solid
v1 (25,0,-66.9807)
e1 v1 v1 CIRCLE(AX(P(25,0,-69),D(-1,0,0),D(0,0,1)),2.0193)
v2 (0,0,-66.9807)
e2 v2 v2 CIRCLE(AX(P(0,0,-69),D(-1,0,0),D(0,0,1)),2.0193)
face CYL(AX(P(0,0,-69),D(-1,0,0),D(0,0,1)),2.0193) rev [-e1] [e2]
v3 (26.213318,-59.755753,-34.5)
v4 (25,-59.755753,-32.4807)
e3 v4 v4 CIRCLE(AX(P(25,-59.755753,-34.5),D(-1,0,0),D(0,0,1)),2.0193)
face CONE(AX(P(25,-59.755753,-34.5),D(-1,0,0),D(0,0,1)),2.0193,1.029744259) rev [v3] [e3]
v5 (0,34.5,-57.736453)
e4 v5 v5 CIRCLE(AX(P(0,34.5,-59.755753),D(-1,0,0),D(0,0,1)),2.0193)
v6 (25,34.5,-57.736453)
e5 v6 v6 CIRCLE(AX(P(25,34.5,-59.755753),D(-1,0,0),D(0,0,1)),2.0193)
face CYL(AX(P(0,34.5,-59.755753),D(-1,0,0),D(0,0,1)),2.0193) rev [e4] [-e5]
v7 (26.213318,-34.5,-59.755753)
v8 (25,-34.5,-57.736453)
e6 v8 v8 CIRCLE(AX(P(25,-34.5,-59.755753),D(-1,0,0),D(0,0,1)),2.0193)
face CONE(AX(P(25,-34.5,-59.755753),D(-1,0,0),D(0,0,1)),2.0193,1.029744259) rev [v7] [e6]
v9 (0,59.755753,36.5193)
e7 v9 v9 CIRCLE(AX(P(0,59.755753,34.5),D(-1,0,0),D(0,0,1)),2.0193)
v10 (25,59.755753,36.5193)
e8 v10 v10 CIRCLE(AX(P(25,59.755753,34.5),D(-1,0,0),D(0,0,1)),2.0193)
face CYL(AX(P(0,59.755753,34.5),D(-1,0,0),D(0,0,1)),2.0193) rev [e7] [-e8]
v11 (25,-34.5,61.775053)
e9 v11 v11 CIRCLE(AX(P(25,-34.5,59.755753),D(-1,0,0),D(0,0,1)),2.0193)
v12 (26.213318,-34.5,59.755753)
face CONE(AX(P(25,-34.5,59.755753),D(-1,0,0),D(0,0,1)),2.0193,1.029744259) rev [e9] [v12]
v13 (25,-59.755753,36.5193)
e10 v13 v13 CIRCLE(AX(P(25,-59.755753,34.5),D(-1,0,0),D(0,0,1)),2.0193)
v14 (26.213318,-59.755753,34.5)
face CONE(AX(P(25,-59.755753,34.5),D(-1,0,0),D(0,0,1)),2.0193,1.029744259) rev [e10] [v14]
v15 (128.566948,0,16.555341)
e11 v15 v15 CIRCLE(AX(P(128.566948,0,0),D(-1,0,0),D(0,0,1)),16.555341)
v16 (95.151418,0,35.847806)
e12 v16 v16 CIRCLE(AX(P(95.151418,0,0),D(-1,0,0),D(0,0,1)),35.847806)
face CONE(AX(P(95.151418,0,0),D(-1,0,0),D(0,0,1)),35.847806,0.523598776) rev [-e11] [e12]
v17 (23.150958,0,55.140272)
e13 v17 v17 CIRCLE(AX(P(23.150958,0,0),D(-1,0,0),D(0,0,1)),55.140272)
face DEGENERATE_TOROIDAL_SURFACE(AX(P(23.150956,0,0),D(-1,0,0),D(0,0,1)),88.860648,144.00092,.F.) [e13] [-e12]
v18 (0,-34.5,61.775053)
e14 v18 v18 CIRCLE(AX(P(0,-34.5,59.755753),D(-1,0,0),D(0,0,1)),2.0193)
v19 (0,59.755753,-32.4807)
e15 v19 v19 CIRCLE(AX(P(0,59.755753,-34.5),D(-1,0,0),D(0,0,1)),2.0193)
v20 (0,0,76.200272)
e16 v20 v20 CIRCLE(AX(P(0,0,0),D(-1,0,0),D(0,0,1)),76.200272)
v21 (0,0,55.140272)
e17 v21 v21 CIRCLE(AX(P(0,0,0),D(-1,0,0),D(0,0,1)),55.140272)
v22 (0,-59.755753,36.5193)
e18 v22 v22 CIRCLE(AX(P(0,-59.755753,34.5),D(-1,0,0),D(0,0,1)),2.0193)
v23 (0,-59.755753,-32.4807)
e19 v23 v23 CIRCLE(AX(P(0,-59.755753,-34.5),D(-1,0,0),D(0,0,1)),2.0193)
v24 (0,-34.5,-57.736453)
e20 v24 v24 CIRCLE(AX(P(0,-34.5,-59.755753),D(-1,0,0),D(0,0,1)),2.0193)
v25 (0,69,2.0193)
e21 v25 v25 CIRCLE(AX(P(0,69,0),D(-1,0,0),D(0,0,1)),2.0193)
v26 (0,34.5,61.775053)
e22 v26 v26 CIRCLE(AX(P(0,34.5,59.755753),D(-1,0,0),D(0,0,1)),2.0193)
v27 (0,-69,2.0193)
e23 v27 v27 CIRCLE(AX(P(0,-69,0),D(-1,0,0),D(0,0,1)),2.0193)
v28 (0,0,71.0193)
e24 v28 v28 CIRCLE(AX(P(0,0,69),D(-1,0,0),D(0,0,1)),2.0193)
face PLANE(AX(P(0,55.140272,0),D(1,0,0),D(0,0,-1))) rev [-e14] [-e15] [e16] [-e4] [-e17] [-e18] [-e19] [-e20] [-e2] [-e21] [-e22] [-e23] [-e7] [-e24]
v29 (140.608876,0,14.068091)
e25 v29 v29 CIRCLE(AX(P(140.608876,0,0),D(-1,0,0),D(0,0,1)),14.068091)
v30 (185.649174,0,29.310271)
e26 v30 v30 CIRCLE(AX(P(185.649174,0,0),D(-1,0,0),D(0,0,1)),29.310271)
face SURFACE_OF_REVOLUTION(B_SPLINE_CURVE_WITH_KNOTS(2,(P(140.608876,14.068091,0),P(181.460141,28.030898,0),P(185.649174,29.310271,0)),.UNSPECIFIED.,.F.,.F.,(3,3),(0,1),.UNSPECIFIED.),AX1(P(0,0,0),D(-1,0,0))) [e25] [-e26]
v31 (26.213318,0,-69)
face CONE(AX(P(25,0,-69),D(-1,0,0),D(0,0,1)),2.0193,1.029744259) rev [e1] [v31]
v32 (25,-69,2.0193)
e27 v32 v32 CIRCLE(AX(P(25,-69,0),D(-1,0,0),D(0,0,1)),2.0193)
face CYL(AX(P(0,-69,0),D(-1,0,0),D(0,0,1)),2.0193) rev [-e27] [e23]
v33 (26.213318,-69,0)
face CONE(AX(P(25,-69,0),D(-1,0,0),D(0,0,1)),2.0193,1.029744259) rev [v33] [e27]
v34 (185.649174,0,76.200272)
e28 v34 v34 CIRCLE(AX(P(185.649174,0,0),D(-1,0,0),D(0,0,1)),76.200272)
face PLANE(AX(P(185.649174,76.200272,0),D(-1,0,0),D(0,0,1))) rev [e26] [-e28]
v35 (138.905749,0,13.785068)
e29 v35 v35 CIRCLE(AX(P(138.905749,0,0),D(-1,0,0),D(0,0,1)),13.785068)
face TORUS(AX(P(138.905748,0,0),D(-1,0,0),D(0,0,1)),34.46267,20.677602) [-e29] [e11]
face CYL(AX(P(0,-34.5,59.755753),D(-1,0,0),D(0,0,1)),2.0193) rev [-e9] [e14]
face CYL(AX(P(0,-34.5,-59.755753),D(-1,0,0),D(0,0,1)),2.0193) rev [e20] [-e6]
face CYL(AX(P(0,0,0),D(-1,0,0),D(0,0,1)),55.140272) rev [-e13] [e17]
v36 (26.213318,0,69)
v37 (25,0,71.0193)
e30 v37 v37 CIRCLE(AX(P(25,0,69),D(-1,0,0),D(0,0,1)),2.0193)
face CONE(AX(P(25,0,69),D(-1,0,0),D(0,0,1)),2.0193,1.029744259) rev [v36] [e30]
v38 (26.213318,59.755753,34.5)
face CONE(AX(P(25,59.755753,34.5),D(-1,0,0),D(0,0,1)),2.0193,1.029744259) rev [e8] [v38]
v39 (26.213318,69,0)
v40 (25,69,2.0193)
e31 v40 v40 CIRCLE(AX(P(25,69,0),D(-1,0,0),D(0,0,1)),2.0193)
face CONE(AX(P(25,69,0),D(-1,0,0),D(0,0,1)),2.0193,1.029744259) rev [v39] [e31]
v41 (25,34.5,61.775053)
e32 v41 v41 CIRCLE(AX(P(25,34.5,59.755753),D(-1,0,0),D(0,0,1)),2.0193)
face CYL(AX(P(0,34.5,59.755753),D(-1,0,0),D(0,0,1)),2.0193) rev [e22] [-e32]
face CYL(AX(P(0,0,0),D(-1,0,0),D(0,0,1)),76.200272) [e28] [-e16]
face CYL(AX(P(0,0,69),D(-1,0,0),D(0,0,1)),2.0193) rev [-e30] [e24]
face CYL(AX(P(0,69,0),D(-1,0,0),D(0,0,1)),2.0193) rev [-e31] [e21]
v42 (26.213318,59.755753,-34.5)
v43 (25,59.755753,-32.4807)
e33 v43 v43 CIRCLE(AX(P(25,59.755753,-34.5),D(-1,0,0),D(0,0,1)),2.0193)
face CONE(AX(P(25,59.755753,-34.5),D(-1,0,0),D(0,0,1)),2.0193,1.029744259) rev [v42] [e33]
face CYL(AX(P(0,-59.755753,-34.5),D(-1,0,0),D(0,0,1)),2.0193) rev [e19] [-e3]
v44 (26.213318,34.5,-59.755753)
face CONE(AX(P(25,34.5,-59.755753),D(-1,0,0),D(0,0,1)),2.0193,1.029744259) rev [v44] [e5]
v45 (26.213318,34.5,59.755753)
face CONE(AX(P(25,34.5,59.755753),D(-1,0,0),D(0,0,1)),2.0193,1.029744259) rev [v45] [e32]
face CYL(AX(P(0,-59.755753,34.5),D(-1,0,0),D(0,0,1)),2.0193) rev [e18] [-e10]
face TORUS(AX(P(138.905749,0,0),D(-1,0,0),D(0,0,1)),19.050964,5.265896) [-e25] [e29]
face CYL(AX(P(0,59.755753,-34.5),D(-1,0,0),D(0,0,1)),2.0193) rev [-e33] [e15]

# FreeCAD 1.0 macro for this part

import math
import FreeCAD as App
import Part
import Sketcher

V = App.Vector
Q = App.Units.Quantity

doc = App.newDocument("Part")
params = doc.addObject("Spreadsheet::Sheet", "Params")
for row, (alias, value) in enumerate([
    ("sketch1_height", "46.890001 mm"),
    ("sketch1_height2", "21.06 mm"),
    ("revolution_angle", "360 deg"),
    ("sketch2_width", "25 mm"),
    ("groove_angle", "360 deg"),
], start=1):
    params.set(f"A{row}", alias)
    params.set(f"B{row}", "=" + value)
    params.setAlias(f"B{row}", alias)

body = doc.addObject("PartDesign::Body", "Body")

sketch1 = body.newObject("Sketcher::SketchObject", "Sketch")
sketch1.AttachmentSupport = (doc.getObject("XY_Plane"), [""])
sketch1.MapMode = "FlatFace"
sketch1.addGeometry([
    Part.LineSegment(V(0, 55.140272, 0), V(23.150958, 55.140272, 0)),
    Part.ArcOfCircle(Part.Circle(V(23.150956, -88.860648, 0), V(0, 0, 1), 144.00092), math.radians(59.999999), math.radians(89.999999)),
    Part.LineSegment(V(95.151418, 35.847806, 0), V(128.566948, 16.555341, 0)),
    Part.ArcOfCircle(Part.Circle(V(138.905748, 34.46267, 0), V(0, 0, 1), 20.677602), math.radians(-119.999998), math.radians(-89.999998)),
    Part.ArcOfCircle(Part.Circle(V(138.905749, 19.050964, 0), V(0, 0, 1), 5.265896), math.radians(-90), math.radians(-71.129768)),
    Part.BSplineCurve([V(140.608876, 14.068091, 0), V(181.460141, 28.030898, 0), V(185.649174, 29.310271, 0)], [3, 3], [0, 1], False, 2, [1, 1, 1], False),
    Part.LineSegment(V(185.649174, 29.310271, 0), V(185.649174, 76.200272, 0)),
    Part.LineSegment(V(185.649174, 76.200272, 0), V(0, 76.200272, 0)),
    Part.LineSegment(V(0, 76.200272, 0), V(0, 55.140272, 0)),
], False)
sketch1.addConstraint([
    Sketcher.Constraint("Block", 5),
    Sketcher.Constraint("Tangent", 0, 2, 1, 2),
    Sketcher.Constraint("Tangent", 1, 1, 2, 1),
    Sketcher.Constraint("Tangent", 2, 2, 3, 1),
    Sketcher.Constraint("Tangent", 3, 2, 4, 1),
    Sketcher.Constraint("Coincident", 4, 2, 5, 1),
    Sketcher.Constraint("Coincident", 5, 2, 6, 1),
    Sketcher.Constraint("Coincident", 6, 2, 7, 1),
    Sketcher.Constraint("Coincident", 7, 2, 8, 1),
    Sketcher.Constraint("Coincident", 8, 2, 0, 1),
    Sketcher.Constraint("Horizontal", 0),
    Sketcher.Constraint("Vertical", 6),
    Sketcher.Constraint("Horizontal", 7),
    Sketcher.Constraint("Vertical", 8),
    Sketcher.Constraint("PointOnObject", 7, 2, -2),
    Sketcher.Constraint("Vertical", 3, 3, 4, 3),
    Sketcher.Constraint("Angle", 2, Q("-30 deg")),
    Sketcher.Constraint("DistanceY", 6, 1, 6, 2, Q("46.890001 mm")),
    Sketcher.Constraint("DistanceY", 8, 2, 8, 1, Q("21.06 mm")),
    Sketcher.Constraint("Radius", 3, Q("20.677602 mm")),
    Sketcher.Constraint("Radius", 1, Q("144.00092 mm")),
    Sketcher.Constraint("Radius", 4, Q("5.265896 mm")),
    Sketcher.Constraint("Distance", 2, Q("38.58493 mm")),
])
sketch1.setExpression("Constraints[17]", "Params.sketch1_height")
sketch1.setExpression("Constraints[18]", "Params.sketch1_height2")
revolution = body.newObject("PartDesign::Revolution", "Revolution")
revolution.Profile = sketch1
revolution.ReferenceAxis = (sketch1, ["H_Axis"])
revolution.setExpression("Angle", "Params.revolution_angle")

sketch2 = body.newObject("Sketcher::SketchObject", "Sketch001")
sketch2.AttachmentSupport = (doc.getObject("XZ_Plane"), [""])
sketch2.MapMode = "FlatFace"
sketch2.addGeometry([
    Part.LineSegment(V(26.2, 69, 0), V(0, 69, 0)),
    Part.LineSegment(V(0, 69, 0), V(0, 71, 0)),
    Part.LineSegment(V(0, 71, 0), V(25, 71, 0)),
    Part.LineSegment(V(25, 71, 0), V(26.2, 69, 0)),
], False)
sketch2.addGeometry(Part.LineSegment(V(0, 69, 0), V(26.2, 69, 0)), True)
sketch2.addConstraint([
    Sketcher.Constraint("Coincident", 0, 2, 1, 1),
    Sketcher.Constraint("Coincident", 1, 2, 2, 1),
    Sketcher.Constraint("Coincident", 2, 2, 3, 1),
    Sketcher.Constraint("Coincident", 3, 2, 0, 1),
    Sketcher.Constraint("Horizontal", 0),
    Sketcher.Constraint("Vertical", 1),
    Sketcher.Constraint("Horizontal", 2),
    Sketcher.Constraint("Horizontal", 4),
    Sketcher.Constraint("Coincident", 4, 1, 0, 2),
    Sketcher.Constraint("PointOnObject", 0, 2, -2),
    Sketcher.Constraint("Equal", 0, 4),
    Sketcher.Constraint("DistanceX", 2, 1, 2, 2, Q("25 mm")),
    Sketcher.Constraint("Angle", 3, Q("-59 deg")),
    Sketcher.Constraint("DistanceY", -1, 1, 0, 2, Q("69 mm")),
    Sketcher.Constraint("DistanceY", 1, 1, 1, 2, Q("2.0193 mm")),
])
sketch2.setExpression("Constraints[11]", "Params.sketch2_width")
groove = body.newObject("PartDesign::Groove", "Groove")
groove.Profile = sketch2
groove.ReferenceAxis = (sketch2, ["Axis0"])
groove.setExpression("Angle", "Params.groove_angle")
doc.recompute()

polarpattern = body.newObject("PartDesign::PolarPattern", "PolarPattern")
polarpattern.Originals = [groove]
polarpattern.Axis = (doc.getObject("X_Axis"), [""])
polarpattern.Angle = 360
polarpattern.Occurrences = 12
body.Tip = polarpattern

doc.recompute()
